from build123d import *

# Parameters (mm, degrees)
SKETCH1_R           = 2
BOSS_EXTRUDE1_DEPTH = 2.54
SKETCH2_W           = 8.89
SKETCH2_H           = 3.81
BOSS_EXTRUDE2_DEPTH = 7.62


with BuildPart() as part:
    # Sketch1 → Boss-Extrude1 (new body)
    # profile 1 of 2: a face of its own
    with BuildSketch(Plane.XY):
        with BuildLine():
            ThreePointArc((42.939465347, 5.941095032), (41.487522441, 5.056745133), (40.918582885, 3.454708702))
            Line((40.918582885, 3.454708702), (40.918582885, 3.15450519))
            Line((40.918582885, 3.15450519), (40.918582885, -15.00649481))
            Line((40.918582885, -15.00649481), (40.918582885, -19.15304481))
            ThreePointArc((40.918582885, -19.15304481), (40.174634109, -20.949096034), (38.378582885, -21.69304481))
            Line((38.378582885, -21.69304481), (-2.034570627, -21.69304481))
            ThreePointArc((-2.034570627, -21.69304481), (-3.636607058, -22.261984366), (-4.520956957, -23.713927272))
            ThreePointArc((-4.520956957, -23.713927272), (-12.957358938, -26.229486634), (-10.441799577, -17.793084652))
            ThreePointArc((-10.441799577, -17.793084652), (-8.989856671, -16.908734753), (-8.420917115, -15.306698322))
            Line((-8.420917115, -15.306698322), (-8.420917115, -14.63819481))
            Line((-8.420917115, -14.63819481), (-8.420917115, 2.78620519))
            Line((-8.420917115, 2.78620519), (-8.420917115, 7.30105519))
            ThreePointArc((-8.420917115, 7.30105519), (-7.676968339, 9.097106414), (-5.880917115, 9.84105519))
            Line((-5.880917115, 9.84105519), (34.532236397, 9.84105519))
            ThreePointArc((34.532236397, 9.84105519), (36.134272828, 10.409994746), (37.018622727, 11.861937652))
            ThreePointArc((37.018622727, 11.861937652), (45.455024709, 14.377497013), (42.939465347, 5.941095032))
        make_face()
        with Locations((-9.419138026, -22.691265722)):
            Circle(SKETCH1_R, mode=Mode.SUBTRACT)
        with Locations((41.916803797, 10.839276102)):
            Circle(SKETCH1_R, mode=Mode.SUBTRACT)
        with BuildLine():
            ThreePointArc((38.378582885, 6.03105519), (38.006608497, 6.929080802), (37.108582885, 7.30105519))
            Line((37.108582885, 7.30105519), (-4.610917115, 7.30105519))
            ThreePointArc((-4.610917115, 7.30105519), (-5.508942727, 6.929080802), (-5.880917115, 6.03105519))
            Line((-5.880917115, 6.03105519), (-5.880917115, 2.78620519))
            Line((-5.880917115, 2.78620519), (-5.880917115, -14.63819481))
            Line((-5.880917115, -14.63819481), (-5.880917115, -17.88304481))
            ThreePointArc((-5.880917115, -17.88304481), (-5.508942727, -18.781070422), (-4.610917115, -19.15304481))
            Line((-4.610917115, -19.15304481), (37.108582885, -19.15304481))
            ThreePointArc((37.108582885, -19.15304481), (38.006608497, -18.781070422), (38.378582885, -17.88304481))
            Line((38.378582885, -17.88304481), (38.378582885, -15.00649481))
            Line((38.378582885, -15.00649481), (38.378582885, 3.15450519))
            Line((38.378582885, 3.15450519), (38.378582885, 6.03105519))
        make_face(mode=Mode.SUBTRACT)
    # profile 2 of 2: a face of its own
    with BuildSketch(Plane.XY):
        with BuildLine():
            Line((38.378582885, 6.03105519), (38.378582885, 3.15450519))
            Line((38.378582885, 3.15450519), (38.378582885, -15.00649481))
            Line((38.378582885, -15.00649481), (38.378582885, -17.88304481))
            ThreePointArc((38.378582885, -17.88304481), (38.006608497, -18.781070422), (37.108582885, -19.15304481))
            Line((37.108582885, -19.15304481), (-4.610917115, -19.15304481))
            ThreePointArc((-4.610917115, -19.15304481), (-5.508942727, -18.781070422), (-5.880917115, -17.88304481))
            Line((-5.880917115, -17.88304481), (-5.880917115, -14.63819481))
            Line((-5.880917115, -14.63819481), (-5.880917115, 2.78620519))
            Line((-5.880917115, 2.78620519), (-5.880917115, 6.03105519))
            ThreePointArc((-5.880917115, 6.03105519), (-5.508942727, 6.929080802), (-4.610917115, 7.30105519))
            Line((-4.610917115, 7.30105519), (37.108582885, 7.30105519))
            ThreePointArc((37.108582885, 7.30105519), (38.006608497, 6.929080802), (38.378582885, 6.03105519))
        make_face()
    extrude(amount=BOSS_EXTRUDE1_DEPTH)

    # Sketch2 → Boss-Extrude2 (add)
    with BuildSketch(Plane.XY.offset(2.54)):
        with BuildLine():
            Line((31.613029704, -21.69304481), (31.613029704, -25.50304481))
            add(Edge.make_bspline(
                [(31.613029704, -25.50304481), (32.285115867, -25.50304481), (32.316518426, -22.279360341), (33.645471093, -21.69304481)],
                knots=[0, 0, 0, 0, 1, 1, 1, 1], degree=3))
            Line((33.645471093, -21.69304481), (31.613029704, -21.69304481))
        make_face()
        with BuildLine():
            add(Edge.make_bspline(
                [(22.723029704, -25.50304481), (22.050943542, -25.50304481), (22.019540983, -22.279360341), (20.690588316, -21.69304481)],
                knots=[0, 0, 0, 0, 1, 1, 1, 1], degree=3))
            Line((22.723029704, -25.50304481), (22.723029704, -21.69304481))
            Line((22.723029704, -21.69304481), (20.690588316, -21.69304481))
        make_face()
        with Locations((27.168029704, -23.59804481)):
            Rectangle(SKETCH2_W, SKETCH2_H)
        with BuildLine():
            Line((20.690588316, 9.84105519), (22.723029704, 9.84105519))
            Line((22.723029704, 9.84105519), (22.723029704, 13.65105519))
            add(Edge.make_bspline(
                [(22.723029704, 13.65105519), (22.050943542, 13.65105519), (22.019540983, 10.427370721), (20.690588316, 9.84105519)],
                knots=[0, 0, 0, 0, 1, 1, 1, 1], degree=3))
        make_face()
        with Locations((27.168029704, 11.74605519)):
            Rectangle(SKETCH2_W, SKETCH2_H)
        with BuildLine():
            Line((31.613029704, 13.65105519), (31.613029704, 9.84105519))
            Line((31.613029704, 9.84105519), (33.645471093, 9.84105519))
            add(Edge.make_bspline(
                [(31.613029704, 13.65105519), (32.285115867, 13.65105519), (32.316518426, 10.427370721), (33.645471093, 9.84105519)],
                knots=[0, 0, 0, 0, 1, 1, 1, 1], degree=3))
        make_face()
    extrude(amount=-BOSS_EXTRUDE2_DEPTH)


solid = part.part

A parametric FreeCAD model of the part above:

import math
import FreeCAD as App
import Part
import Sketcher

V = App.Vector
Q = App.Units.Quantity

doc = App.newDocument("Part")
body = doc.addObject("PartDesign::Body", "Body")

sketch1 = doc.addObject("Sketcher::SketchObject", "Sketch")
body.addObject(sketch1)
sketch1.AttachmentSupport = (doc.XY_Plane, [""])
sketch1.MapMode = "FlatFace"
sketch1.addGeometry([
    Part.ArcOfCircle(Part.Circle(V(43.5, 3.5, 0), V(0, 0, 1), 2.5), math.radians(102), math.radians(180)),
    Part.ArcOfCircle(Part.Circle(V(41.9, 10.8, 0), V(0, 0, 1), 5), math.radians(-78), math.radians(168)),
    Part.ArcOfCircle(Part.Circle(V(34.5, 12.4, 0), V(0, 0, 1), 2.5), math.radians(-90), math.radians(-12)),
    Part.LineSegment(V(34.5, 9.8, 0), V(-5.9, 9.8, 0)),
    Part.ArcOfCircle(Part.Circle(V(-5.9, 7.3, 0), V(0, 0, 1), 2.5), math.radians(90), math.radians(180)),
    Part.LineSegment(V(-8.4, 7.3, 0), V(-8.4, -15.3, 0)),
    Part.ArcOfCircle(Part.Circle(V(-11, -15.3, 0), V(0, 0, 1), 2.5), math.radians(-78), math.radians(0)),
    Part.ArcOfCircle(Part.Circle(V(-9.4, -22.7, 0), V(0, 0, 1), 5), math.radians(102), math.radians(348)),
    Part.ArcOfCircle(Part.Circle(V(-2, -24.2, 0), V(0, 0, 1), 2.5), math.radians(90), math.radians(168)),
    Part.LineSegment(V(-2, -21.7, 0), V(38.4, -21.7, 0)),
    Part.ArcOfCircle(Part.Circle(V(38.4, -19.2, 0), V(0, 0, 1), 2.5), math.radians(-90), math.radians(0)),
    Part.LineSegment(V(40.9, -19.2, 0), V(40.9, 3.5, 0)),
    Part.Circle(V(-9.4, -22.7, 0), V(0, 0, 1), 2),
    Part.Circle(V(41.9, 10.8, 0), V(0, 0, 1), 2),
], False)
sketch1.addConstraint([
    Sketcher.Constraint("Tangent", 0, 1, 1, 1),
    Sketcher.Constraint("Tangent", 1, 2, 2, 2),
    Sketcher.Constraint("Tangent", 2, 1, 3, 1),
    Sketcher.Constraint("Tangent", 3, 2, 4, 1),
    Sketcher.Constraint("Tangent", 4, 2, 5, 1),
    Sketcher.Constraint("Tangent", 5, 2, 6, 2),
    Sketcher.Constraint("Tangent", 6, 1, 7, 1),
    Sketcher.Constraint("Tangent", 7, 2, 8, 2),
    Sketcher.Constraint("Tangent", 8, 1, 9, 1),
    Sketcher.Constraint("Tangent", 9, 2, 10, 1),
    Sketcher.Constraint("Tangent", 10, 2, 11, 1),
    Sketcher.Constraint("Tangent", 11, 2, 0, 2),
    Sketcher.Constraint("Horizontal", 3),
    Sketcher.Constraint("Vertical", 5),
    Sketcher.Constraint("Horizontal", 9),
    Sketcher.Constraint("Vertical", 11),
    Sketcher.Constraint("Coincident", 12, 3, 7, 3),
    Sketcher.Constraint("Coincident", 13, 3, 1, 3),
    Sketcher.Constraint("Equal", 0, 2),
    Sketcher.Constraint("Equal", 2, 4),
    Sketcher.Constraint("Equal", 4, 6),
    Sketcher.Constraint("Equal", 1, 7),
    Sketcher.Constraint("Equal", 6, 8),
    Sketcher.Constraint("Equal", 8, 10),
    Sketcher.Constraint("Equal", 12, 13),
    Sketcher.Constraint("Equal", 3, 9),
    Sketcher.Constraint("Equal", 5, 11),
    Sketcher.Constraint("Radius", 0, Q("0.1 in")),
    Sketcher.Constraint("Radius", 1, Q("0.197 in")),
    Sketcher.Constraint("Diameter", 12, Q("4 mm")),
    Sketcher.Constraint("DistanceX", 1, 3, 0, 3, Q("0.0607 in")),
    Sketcher.Constraint("DistanceY", 1, 3, 2, 3, Q("0.0607 in")),
    Sketcher.Constraint("DistanceX", 4, 3, 1, 3, Q("1.8818 in")),
    Sketcher.Constraint("DistanceY", 7, 3, 4, 3, Q("1.1808 in")),
    Sketcher.Constraint("DistanceY", 6, 3, -1, 1, Q("15.306698 mm")),
    Sketcher.Constraint("DistanceX", 6, 1, -1, 1, Q("10.4418 mm")),
])
pad1 = doc.addObject("PartDesign::Pad", "Pad")
body.addObject(pad1)
pad1.Profile = sketch1
pad1.Length = Q("0.1 in")

sketch2 = doc.addObject("Sketcher::SketchObject", "Sketch001")
body.addObject(sketch2)
sketch2.AttachmentSupport = (doc.XY_Plane, [""])
sketch2.MapMode = "FlatFace"
sketch2.AttachmentOffset = App.Placement(V(0, 0, 0.1 * 25.4), App.Rotation())
sketch2.addGeometry([
    Part.BSplineCurve([V(31.61303, -25.503045, 0), V(32.285116, -25.503045, 0), V(32.316518, -22.27936, 0), V(33.645471, -21.693045, 0)], [4, 4], [0, 1], False, 3, [1, 1, 1, 1], False),
    Part.LineSegment(V(33.645471, -21.693045, 0), V(20.690588, -21.693045, 0)),
    Part.BSplineCurve([V(22.72303, -25.503045, 0), V(22.050944, -25.503045, 0), V(22.019541, -22.27936, 0), V(20.690588, -21.693045, 0)], [4, 4], [0, 1], False, 3, [1, 1, 1, 1], False),
    Part.LineSegment(V(22.72303, -25.503045, 0), V(31.61303, -25.503045, 0)),
    Part.LineSegment(V(20.690588, 9.841055, 0), V(33.645471, 9.841055, 0)),
    Part.BSplineCurve([V(31.61303, 13.651055, 0), V(32.285116, 13.651055, 0), V(32.316518, 10.427371, 0), V(33.645471, 9.841055, 0)], [4, 4], [0, 1], False, 3, [1, 1, 1, 1], False),
    Part.LineSegment(V(31.61303, 13.651055, 0), V(22.72303, 13.651055, 0)),
    Part.BSplineCurve([V(22.72303, 13.651055, 0), V(22.050944, 13.651055, 0), V(22.019541, 10.427371, 0), V(20.690588, 9.841055, 0)], [4, 4], [0, 1], False, 3, [1, 1, 1, 1], False),
], False)
sketch2.addConstraint([
    Sketcher.Constraint("Block", 0),
    Sketcher.Constraint("Block", 2),
    Sketcher.Constraint("Block", 5),
    Sketcher.Constraint("Block", 7),
    Sketcher.Constraint("Coincident", 0, 2, 1, 1),
    Sketcher.Constraint("Coincident", 1, 2, 2, 2),
    Sketcher.Constraint("Coincident", 2, 1, 3, 1),
    Sketcher.Constraint("Coincident", 3, 2, 0, 1),
    Sketcher.Constraint("Coincident", 4, 2, 5, 2),
    Sketcher.Constraint("Coincident", 5, 1, 6, 1),
    Sketcher.Constraint("Coincident", 6, 2, 7, 1),
    Sketcher.Constraint("Coincident", 7, 2, 4, 1),
])
pad2 = doc.addObject("PartDesign::Pad", "Pad001")
body.addObject(pad2)
pad2.Profile = sketch2
pad2.Length = Q("0.3 in")
pad2.Reversed = True

doc.recompute()
